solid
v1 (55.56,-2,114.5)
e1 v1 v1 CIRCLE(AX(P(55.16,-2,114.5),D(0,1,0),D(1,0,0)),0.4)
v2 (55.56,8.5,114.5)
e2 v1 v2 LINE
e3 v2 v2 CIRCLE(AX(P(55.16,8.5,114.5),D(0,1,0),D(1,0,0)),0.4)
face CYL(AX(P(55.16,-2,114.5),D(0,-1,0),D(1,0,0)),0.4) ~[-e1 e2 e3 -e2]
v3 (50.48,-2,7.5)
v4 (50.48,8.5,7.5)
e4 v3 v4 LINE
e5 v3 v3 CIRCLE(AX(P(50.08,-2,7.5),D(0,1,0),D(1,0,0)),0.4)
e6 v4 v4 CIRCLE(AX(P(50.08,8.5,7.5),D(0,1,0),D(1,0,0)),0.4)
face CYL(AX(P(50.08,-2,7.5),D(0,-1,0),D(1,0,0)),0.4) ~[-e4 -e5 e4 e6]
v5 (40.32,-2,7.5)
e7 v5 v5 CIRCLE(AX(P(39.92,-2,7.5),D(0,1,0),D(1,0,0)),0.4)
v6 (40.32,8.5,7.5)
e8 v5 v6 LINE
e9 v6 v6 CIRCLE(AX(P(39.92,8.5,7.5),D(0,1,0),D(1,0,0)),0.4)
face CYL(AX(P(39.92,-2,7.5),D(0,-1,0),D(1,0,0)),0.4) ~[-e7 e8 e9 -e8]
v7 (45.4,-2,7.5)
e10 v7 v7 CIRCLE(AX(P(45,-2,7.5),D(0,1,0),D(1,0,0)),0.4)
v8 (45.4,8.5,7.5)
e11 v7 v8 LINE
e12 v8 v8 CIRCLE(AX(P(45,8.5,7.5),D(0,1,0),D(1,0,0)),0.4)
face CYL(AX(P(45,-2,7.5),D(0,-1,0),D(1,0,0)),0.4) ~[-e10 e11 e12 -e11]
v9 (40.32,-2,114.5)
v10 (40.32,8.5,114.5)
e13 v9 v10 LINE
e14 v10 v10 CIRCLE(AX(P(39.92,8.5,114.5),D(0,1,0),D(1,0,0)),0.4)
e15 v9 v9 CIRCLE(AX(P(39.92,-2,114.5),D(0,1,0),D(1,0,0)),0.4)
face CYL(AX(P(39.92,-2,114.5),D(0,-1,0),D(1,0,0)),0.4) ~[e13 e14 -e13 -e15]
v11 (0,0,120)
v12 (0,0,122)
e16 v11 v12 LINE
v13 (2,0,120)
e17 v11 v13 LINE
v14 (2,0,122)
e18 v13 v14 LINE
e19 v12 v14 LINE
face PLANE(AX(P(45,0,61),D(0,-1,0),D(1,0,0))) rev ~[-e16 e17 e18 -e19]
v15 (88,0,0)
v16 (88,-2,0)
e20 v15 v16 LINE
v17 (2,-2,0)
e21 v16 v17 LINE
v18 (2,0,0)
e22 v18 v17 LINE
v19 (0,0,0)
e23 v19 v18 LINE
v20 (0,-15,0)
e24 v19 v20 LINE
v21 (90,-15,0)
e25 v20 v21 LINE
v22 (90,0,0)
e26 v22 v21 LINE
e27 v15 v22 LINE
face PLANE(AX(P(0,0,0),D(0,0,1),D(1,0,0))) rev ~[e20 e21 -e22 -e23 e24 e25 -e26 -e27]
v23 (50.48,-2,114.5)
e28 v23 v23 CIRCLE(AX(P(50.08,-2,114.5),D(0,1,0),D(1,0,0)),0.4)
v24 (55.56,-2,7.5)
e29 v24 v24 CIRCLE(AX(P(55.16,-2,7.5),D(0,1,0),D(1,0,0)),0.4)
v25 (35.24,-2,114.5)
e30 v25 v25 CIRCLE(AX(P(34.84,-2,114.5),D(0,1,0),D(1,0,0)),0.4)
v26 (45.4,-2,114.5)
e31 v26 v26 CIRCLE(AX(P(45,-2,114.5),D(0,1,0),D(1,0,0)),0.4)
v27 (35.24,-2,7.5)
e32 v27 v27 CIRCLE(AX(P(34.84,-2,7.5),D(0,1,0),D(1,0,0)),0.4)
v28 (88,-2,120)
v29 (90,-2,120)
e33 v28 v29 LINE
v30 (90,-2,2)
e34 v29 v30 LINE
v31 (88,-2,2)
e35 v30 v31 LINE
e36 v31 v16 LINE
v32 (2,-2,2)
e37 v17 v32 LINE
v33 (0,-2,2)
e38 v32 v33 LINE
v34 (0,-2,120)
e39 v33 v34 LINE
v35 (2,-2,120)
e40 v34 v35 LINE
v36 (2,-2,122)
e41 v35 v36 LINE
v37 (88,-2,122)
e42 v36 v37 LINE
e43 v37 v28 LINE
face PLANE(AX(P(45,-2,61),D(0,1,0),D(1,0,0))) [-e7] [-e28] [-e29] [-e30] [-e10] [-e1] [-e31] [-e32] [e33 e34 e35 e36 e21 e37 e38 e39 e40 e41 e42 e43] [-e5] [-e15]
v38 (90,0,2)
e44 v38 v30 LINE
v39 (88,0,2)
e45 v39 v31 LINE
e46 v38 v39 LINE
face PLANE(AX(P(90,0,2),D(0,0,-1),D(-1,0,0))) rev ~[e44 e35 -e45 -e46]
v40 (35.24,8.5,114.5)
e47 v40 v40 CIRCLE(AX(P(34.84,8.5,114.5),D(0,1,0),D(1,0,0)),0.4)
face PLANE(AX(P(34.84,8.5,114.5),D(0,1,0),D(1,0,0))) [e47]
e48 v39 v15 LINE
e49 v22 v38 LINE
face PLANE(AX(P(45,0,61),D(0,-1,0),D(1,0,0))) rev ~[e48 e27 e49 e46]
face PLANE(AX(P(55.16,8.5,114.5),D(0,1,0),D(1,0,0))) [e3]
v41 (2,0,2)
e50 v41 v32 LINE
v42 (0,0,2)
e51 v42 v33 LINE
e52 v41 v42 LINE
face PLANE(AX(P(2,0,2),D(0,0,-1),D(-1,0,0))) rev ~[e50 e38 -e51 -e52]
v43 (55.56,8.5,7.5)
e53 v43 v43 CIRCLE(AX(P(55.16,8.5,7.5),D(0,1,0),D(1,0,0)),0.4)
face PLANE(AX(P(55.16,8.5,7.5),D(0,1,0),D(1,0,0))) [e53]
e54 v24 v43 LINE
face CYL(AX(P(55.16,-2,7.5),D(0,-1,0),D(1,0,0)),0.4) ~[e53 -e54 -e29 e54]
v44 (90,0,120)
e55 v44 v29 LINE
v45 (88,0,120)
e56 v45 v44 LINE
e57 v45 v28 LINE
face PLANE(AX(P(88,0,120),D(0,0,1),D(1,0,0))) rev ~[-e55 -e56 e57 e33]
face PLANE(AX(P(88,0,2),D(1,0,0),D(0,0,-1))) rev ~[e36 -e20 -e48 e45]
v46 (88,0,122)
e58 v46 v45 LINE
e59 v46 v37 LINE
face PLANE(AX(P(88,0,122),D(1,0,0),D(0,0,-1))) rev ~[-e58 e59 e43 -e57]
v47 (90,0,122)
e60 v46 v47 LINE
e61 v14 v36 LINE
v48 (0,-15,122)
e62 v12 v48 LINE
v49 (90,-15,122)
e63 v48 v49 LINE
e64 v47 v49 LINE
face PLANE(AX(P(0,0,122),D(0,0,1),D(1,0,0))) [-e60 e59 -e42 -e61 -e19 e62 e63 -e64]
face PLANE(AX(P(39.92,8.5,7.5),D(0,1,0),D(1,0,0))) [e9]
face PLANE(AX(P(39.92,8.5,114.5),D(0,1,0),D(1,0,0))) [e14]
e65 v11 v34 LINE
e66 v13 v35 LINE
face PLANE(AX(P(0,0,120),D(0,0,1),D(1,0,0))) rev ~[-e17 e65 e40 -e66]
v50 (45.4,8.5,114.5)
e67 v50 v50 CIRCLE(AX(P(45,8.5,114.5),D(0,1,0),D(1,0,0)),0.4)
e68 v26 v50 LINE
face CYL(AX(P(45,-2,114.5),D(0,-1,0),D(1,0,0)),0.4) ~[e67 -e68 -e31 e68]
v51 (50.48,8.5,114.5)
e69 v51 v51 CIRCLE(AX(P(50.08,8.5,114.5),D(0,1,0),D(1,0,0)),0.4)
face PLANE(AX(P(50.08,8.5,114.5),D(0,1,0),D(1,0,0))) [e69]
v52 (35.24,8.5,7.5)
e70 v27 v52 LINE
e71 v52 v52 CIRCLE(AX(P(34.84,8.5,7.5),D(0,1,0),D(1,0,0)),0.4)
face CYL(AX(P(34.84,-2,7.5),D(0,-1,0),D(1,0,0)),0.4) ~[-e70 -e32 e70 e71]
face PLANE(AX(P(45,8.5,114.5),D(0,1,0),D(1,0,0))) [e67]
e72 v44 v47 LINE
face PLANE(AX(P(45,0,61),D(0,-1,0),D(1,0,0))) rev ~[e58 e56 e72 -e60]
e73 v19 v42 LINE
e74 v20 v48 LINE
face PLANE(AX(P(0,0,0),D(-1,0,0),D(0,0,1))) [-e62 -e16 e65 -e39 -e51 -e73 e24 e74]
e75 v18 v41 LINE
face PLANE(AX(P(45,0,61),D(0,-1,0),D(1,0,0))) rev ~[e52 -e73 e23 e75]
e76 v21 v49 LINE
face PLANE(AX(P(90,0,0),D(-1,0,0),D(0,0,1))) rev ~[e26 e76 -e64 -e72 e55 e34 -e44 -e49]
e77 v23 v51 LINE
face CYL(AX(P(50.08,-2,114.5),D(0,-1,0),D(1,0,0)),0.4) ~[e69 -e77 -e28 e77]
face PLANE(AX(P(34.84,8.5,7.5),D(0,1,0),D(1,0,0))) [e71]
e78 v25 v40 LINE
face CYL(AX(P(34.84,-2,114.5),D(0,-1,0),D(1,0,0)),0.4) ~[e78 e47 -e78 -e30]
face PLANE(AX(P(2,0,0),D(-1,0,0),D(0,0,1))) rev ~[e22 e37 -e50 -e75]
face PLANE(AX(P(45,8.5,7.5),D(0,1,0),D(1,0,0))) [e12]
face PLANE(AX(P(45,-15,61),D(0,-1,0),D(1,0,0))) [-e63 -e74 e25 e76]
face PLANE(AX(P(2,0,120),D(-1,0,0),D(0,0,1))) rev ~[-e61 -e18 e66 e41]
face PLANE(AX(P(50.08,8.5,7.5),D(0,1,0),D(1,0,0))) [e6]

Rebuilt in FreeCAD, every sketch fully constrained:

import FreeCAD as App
import Part
import Sketcher
from FreeCAD import Vector


def add_polygon(sketch, points):
    """Adds a closed chain of lines whose ends are joined by coincident constraints."""
    first, n = sketch.GeometryCount, len(points)
    for a, b in zip(points, points[1:] + points[:1]):
        sketch.addGeometry(Part.LineSegment(App.Vector(*a, 0), App.Vector(*b, 0)), False)
    for i in range(n):
        sketch.addConstraint(Sketcher.Constraint("Coincident", first + i, 2, first + (i + 1) % n, 1))

doc = App.newDocument("Part")
body = doc.addObject("PartDesign::Body", "Body")

# Sketch on XZ plane
sketch1 = body.newObject("Sketcher::SketchObject", "Sketch")
sketch1.AttachmentSupport = (doc.getObject("XZ_Plane"), [""])
sketch1.MapMode = "FlatFace"
add_polygon(sketch1, [(0, 122), (0, 0), (90, 0), (90, 122)])  # lines 0-3
sketch1.addConstraint([
    Sketcher.Constraint("Vertical", 0),
    Sketcher.Constraint("Horizontal", 1),
    Sketcher.Constraint("Vertical", 2),
    Sketcher.Constraint("Horizontal", 3),
    Sketcher.Constraint("Coincident", 0, 2, -1, 1),
    Sketcher.Constraint("DistanceX", 1, 1, 1, 2, 90.0),
    Sketcher.Constraint("DistanceY", 0, 2, 0, 1, 122.0),
])
pad1 = body.newObject("PartDesign::Pad", "Pad")
pad1.Profile = sketch1
pad1.Length = 15

# Sketch on XZ plane
sketch2 = body.newObject("Sketcher::SketchObject", "Sketch001")
sketch2.AttachmentSupport = (doc.getObject("XZ_Plane"), [""])
sketch2.MapMode = "FlatFace"
add_polygon(sketch2, [(88, 122), (88, 120), (90, 120), (90, 2), (88, 2), (88, 0), (2, 0), (2, 2), (0, 2), (0, 120), (2, 120), (2, 122)])  # lines 0-11
sketch2.addConstraint([
    Sketcher.Constraint("Vertical", 0),
    Sketcher.Constraint("Horizontal", 1),
    Sketcher.Constraint("Vertical", 2),
    Sketcher.Constraint("Horizontal", 3),
    Sketcher.Constraint("Vertical", 4),
    Sketcher.Constraint("Horizontal", 5),
    Sketcher.Constraint("Vertical", 6),
    Sketcher.Constraint("Horizontal", 7),
    Sketcher.Constraint("Vertical", 8),
    Sketcher.Constraint("Horizontal", 9),
    Sketcher.Constraint("Vertical", 10),
    Sketcher.Constraint("Horizontal", 11),
    Sketcher.Constraint("PointOnObject", 4, 2, -1),
    Sketcher.Constraint("PointOnObject", 7, 2, -2),
    Sketcher.Constraint("Horizontal", 3, 2, 6, 2),
    Sketcher.Constraint("Horizontal", 1, 2, 8, 2),
    Sketcher.Constraint("Vertical", 0, 2, 3, 2),
    Sketcher.Constraint("Vertical", 6, 2, 9, 2),
    Sketcher.Constraint("Equal", 3, 7),
    Sketcher.Constraint("Equal", 9, 0),
    Sketcher.Constraint("Equal", 0, 4),
    Sketcher.Constraint("DistanceX", 1, 1, 1, 2, 2.0),
    Sketcher.Constraint("DistanceX", 5, 2, 5, 1, 86.0),
    Sketcher.Constraint("DistanceY", 2, 2, 2, 1, 118.0),
])
pocket1 = body.newObject("PartDesign::Pocket", "Pocket")
pocket1.Profile = sketch2
pocket1.Length = 2
pocket1.Reversed = True

# Sketch on XZ plane
sketch3 = body.newObject("Sketcher::SketchObject", "Sketch002")
sketch3.AttachmentSupport = (doc.getObject("XZ_Plane"), [""])
sketch3.MapMode = "FlatFace"
sketch3.AttachmentOffset = App.Placement(Vector(0, 0, 2), App.Rotation())
sketch3.addGeometry([
    Part.Circle(Vector(34.84, 7.5, 0), Vector(0, 0, 1), 0.4),  # 0
    Part.Circle(Vector(39.92, 7.5, 0), Vector(0, 0, 1), 0.4),  # 1
    Part.Circle(Vector(45, 7.5, 0), Vector(0, 0, 1), 0.4),  # 2
    Part.Circle(Vector(50.08, 7.5, 0), Vector(0, 0, 1), 0.4),  # 3
    Part.Circle(Vector(55.16, 7.5, 0), Vector(0, 0, 1), 0.4),  # 4
    Part.Circle(Vector(34.84, 114.5, 0), Vector(0, 0, 1), 0.4),  # 5
    Part.Circle(Vector(39.92, 114.5, 0), Vector(0, 0, 1), 0.4),  # 6
    Part.Circle(Vector(45, 114.5, 0), Vector(0, 0, 1), 0.4),  # 7
    Part.Circle(Vector(50.08, 114.5, 0), Vector(0, 0, 1), 0.4),  # 8
    Part.Circle(Vector(55.16, 114.5, 0), Vector(0, 0, 1), 0.4),  # 9
], False)
sketch3.addConstraint([
    Sketcher.Constraint("Equal", 0, 1),
    Sketcher.Constraint("Equal", 1, 2),
    Sketcher.Constraint("Equal", 2, 3),
    Sketcher.Constraint("Equal", 3, 4),
    Sketcher.Constraint("Equal", 4, 5),
    Sketcher.Constraint("Equal", 5, 6),
    Sketcher.Constraint("Equal", 6, 7),
    Sketcher.Constraint("Equal", 7, 8),
    Sketcher.Constraint("Equal", 8, 9),
    Sketcher.Constraint("Horizontal", 0, 3, 1, 3),
    Sketcher.Constraint("Horizontal", 1, 3, 2, 3),
    Sketcher.Constraint("Horizontal", 2, 3, 3, 3),
    Sketcher.Constraint("Horizontal", 3, 3, 4, 3),
    Sketcher.Constraint("Horizontal", 5, 3, 6, 3),
    Sketcher.Constraint("Horizontal", 6, 3, 7, 3),
    Sketcher.Constraint("Horizontal", 7, 3, 8, 3),
    Sketcher.Constraint("Horizontal", 8, 3, 9, 3),
    Sketcher.Constraint("Vertical", 0, 3, 5, 3),
    Sketcher.Constraint("Vertical", 1, 3, 6, 3),
    Sketcher.Constraint("Vertical", 2, 3, 7, 3),
    Sketcher.Constraint("Vertical", 3, 3, 8, 3),
    Sketcher.Constraint("Vertical", 4, 3, 9, 3),
    Sketcher.Constraint("Diameter", 0, 0.8),
    Sketcher.Constraint("DistanceX", -1, 1, 2, 3, 45.0),
    Sketcher.Constraint("DistanceY", 0, 3, 5, 3, 107.0),
    Sketcher.Constraint("DistanceY", -1, 1, 0, 3, 7.5),
    Sketcher.Constraint("DistanceX", -1, 1, 0, 3, 34.84),
    Sketcher.Constraint("DistanceX", -1, 1, 1, 3, 39.92),
    Sketcher.Constraint("DistanceX", -1, 1, 3, 3, 50.08),
    Sketcher.Constraint("DistanceX", -1, 1, 4, 3, 55.16),
])
pad2 = body.newObject("PartDesign::Pad", "Pad001")
pad2.Profile = sketch3
pad2.Length = 10.5
pad2.Reversed = True

doc.recompute()
